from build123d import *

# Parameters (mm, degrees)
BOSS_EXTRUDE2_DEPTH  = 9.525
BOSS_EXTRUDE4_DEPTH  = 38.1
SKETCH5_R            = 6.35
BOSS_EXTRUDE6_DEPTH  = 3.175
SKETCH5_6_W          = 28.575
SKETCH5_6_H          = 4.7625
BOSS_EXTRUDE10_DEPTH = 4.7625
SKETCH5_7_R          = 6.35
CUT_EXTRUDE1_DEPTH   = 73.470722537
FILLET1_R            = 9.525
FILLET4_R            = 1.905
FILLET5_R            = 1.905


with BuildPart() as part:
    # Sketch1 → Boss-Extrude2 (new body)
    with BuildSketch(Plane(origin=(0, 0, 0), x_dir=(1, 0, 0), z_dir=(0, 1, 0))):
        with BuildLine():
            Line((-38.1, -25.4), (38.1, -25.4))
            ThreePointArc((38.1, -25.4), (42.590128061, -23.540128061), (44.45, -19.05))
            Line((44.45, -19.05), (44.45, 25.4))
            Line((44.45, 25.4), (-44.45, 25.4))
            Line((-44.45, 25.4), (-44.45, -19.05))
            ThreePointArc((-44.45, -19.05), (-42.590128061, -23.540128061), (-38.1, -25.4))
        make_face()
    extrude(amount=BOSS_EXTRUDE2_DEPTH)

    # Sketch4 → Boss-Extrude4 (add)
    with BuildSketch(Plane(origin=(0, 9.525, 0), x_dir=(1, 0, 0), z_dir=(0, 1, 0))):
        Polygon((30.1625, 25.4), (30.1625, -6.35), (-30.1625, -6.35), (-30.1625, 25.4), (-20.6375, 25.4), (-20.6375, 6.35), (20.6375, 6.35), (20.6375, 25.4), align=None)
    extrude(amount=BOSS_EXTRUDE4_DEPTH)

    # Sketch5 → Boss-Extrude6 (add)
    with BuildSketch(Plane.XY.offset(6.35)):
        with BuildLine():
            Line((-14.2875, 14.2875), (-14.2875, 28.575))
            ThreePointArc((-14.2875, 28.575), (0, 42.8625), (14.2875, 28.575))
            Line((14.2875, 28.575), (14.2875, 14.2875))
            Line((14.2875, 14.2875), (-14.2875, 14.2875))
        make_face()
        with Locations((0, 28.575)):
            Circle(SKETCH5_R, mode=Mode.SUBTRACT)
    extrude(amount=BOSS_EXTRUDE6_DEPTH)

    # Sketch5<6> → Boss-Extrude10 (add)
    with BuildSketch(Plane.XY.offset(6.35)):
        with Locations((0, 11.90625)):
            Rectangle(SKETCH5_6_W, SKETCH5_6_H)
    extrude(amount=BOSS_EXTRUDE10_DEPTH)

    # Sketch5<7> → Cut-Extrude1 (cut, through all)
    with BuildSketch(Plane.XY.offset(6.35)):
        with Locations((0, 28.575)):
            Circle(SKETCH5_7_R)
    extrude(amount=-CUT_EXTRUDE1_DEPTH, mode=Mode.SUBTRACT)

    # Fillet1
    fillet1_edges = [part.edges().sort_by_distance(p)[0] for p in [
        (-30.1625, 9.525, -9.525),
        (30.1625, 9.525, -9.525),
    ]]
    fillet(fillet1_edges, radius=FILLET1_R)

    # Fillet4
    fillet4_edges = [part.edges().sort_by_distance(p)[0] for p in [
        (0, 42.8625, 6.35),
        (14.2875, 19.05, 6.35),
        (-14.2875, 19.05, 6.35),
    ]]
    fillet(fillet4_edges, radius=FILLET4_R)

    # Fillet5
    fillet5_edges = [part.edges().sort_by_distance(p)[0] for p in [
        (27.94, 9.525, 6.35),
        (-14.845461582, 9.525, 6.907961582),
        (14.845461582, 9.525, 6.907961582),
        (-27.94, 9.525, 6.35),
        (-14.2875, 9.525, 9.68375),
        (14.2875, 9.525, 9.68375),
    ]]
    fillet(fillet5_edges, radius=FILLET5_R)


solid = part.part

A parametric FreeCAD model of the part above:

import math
import FreeCAD as App
import Part
import Sketcher

V = App.Vector
Q = App.Units.Quantity


def edges_at(feature, points):
    """Names of the edges that pass closest to the given points."""
    edges = feature.Shape.Edges
    near = lambda p: min(range(len(edges)), key=lambda i: edges[i].distToShape(Part.Vertex(*p))[0])
    return sorted({f"Edge{near(p) + 1}" for p in points})

doc = App.newDocument("Part")
body = doc.addObject("PartDesign::Body", "Body")

sketch1 = body.newObject("Sketcher::SketchObject", "Sketch")
sketch1.AttachmentSupport = (doc.getObject("XZ_Plane"), [""])
sketch1.MapMode = "FlatFace"
sketch1.addGeometry([
    Part.LineSegment(V(-38, 25, 0), V(38, 25, 0)),
    Part.ArcOfCircle(Part.Circle(V(38, 19, 0), V(0, 0, 1), 6), math.radians(0), math.radians(90)),
    Part.LineSegment(V(44, 19, 0), V(44, -25, 0)),
    Part.LineSegment(V(44, -25, 0), V(-44, -25, 0)),
    Part.LineSegment(V(-44, -25, 0), V(-44, 19, 0)),
    Part.ArcOfCircle(Part.Circle(V(-38, 19, 0), V(0, 0, 1), 6), math.radians(90), math.radians(180)),
], False)
sketch1.addConstraint([
    Sketcher.Constraint("Tangent", 0, 2, 1, 2),
    Sketcher.Constraint("Tangent", 1, 1, 2, 1),
    Sketcher.Constraint("Coincident", 2, 2, 3, 1),
    Sketcher.Constraint("Coincident", 3, 2, 4, 1),
    Sketcher.Constraint("Tangent", 4, 2, 5, 2),
    Sketcher.Constraint("Tangent", 5, 1, 0, 1),
    Sketcher.Constraint("Horizontal", 0),
    Sketcher.Constraint("Vertical", 2),
    Sketcher.Constraint("Horizontal", 3),
    Sketcher.Constraint("Vertical", 4),
    Sketcher.Constraint("Equal", 1, 5),
    Sketcher.Constraint("DistanceX", 0, 1, 0, 2, Q("3 in")),
    Sketcher.Constraint("Radius", 1, Q("0.25 in")),
    Sketcher.Constraint("DistanceY", -1, 1, 0, 2, Q("1 in")),
    Sketcher.Constraint("DistanceY", 2, 2, -1, 1, Q("1 in")),
    Sketcher.Constraint("DistanceX", -1, 1, 1, 3, Q("1.5 in")),
])
pad1 = body.newObject("PartDesign::Pad", "Pad")
pad1.Profile = sketch1
pad1.Length = Q("0.375 in")
pad1.Reversed = True

sketch2 = body.newObject("Sketcher::SketchObject", "Sketch001")
sketch2.AttachmentSupport = (doc.getObject("XZ_Plane"), [""])
sketch2.MapMode = "FlatFace"
sketch2.AttachmentOffset = App.Placement(V(0, 0, -0.375 * 25.4), App.Rotation())
sketch2.addGeometry([
    Part.LineSegment(V(30, 6, 0), V(30, -25, 0)),
    Part.LineSegment(V(30, -25, 0), V(21, -25, 0)),
    Part.LineSegment(V(21, -25, 0), V(21, -6, 0)),
    Part.LineSegment(V(21, -6, 0), V(-21, -6, 0)),
    Part.LineSegment(V(-21, -6, 0), V(-21, -25, 0)),
    Part.LineSegment(V(-21, -25, 0), V(-30, -25, 0)),
    Part.LineSegment(V(-30, -25, 0), V(-30, 6, 0)),
    Part.LineSegment(V(-30, 6, 0), V(30, 6, 0)),
], False)
sketch2.addConstraint([
    Sketcher.Constraint("Coincident", 0, 2, 1, 1),
    Sketcher.Constraint("Coincident", 1, 2, 2, 1),
    Sketcher.Constraint("Coincident", 2, 2, 3, 1),
    Sketcher.Constraint("Coincident", 3, 2, 4, 1),
    Sketcher.Constraint("Coincident", 4, 2, 5, 1),
    Sketcher.Constraint("Coincident", 5, 2, 6, 1),
    Sketcher.Constraint("Coincident", 6, 2, 7, 1),
    Sketcher.Constraint("Coincident", 7, 2, 0, 1),
    Sketcher.Constraint("Vertical", 0),
    Sketcher.Constraint("Horizontal", 1),
    Sketcher.Constraint("Vertical", 2),
    Sketcher.Constraint("Horizontal", 3),
    Sketcher.Constraint("Vertical", 4),
    Sketcher.Constraint("Horizontal", 5),
    Sketcher.Constraint("Vertical", 6),
    Sketcher.Constraint("Horizontal", 7),
    Sketcher.Constraint("Symmetric", 1, 2, 4, 2, -2),
    Sketcher.Constraint("Equal", 1, 5),
    Sketcher.Constraint("DistanceY", 0, 2, -1, 1, Q("1 in")),
    Sketcher.Constraint("DistanceX", 3, 2, 0, 2, Q("2 in")),
    Sketcher.Constraint("DistanceY", 0, 2, 0, 1, Q("1.25 in")),
    Sketcher.Constraint("DistanceY", 2, 1, 2, 2, Q("0.75 in")),
    Sketcher.Constraint("DistanceX", 1, 2, 1, 1, Q("0.375 in")),
])
pad2 = body.newObject("PartDesign::Pad", "Pad001")
pad2.Profile = sketch2
pad2.Length = Q("1.5 in")
pad2.Reversed = True

sketch3 = body.newObject("Sketcher::SketchObject", "Sketch002")
sketch3.AttachmentSupport = (doc.getObject("XY_Plane"), [""])
sketch3.MapMode = "FlatFace"
sketch3.AttachmentOffset = App.Placement(V(0, 0, 0.25 * 25.4), App.Rotation())
sketch3.addGeometry([
    Part.LineSegment(V(-14, 29, 0), V(-14, 14, 0)),
    Part.LineSegment(V(-14, 14, 0), V(14, 14, 0)),
    Part.LineSegment(V(14, 14, 0), V(14, 29, 0)),
    Part.ArcOfCircle(Part.Circle(V(0, 29, 0), V(0, 0, 1), 14), math.radians(0), math.radians(180)),
    Part.Circle(V(0, 29, 0), V(0, 0, 1), 6),
], False)
sketch3.addConstraint([
    Sketcher.Constraint("Coincident", 0, 2, 1, 1),
    Sketcher.Constraint("Coincident", 1, 2, 2, 1),
    Sketcher.Constraint("Tangent", 2, 2, 3, 1),
    Sketcher.Constraint("Tangent", 3, 2, 0, 1),
    Sketcher.Constraint("Vertical", 0),
    Sketcher.Constraint("Horizontal", 1),
    Sketcher.Constraint("Vertical", 2),
    Sketcher.Constraint("Coincident", 4, 3, 3, 3),
    Sketcher.Constraint("PointOnObject", 3, 3, -2),
    Sketcher.Constraint("Diameter", 4, Q("0.5 in")),
    Sketcher.Constraint("Radius", 3, Q("0.5625 in")),
    Sketcher.Constraint("DistanceY", 0, 2, 0, 1, Q("0.5625 in")),
    Sketcher.Constraint("DistanceY", -1, 1, 3, 3, Q("1.125 in")),
])
pad3 = body.newObject("PartDesign::Pad", "Pad002")
pad3.Profile = sketch3
pad3.Length = Q("0.125 in")

sketch4 = body.newObject("Sketcher::SketchObject", "Sketch003")
sketch4.AttachmentSupport = (doc.getObject("XY_Plane"), [""])
sketch4.MapMode = "FlatFace"
sketch4.AttachmentOffset = App.Placement(V(0, 0, 0.25 * 25.4), App.Rotation())
sketch4.addGeometry([
    Part.LineSegment(V(-14.3, 14.3, 0), V(-14.3, 9.5, 0)),
    Part.LineSegment(V(-14.3, 9.5, 0), V(14.3, 9.5, 0)),
    Part.LineSegment(V(14.3, 9.5, 0), V(14.3, 14.3, 0)),
    Part.LineSegment(V(14.3, 14.3, 0), V(-14.3, 14.3, 0)),
], False)
sketch4.addConstraint([
    Sketcher.Constraint("Coincident", 0, 2, 1, 1),
    Sketcher.Constraint("Coincident", 1, 2, 2, 1),
    Sketcher.Constraint("Coincident", 2, 2, 3, 1),
    Sketcher.Constraint("Coincident", 3, 2, 0, 1),
    Sketcher.Constraint("Vertical", 0),
    Sketcher.Constraint("Horizontal", 1),
    Sketcher.Constraint("Vertical", 2),
    Sketcher.Constraint("Horizontal", 3),
    Sketcher.Constraint("DistanceX", 1, 1, 1, 2, Q("1.125 in")),
    Sketcher.Constraint("DistanceY", 0, 2, 0, 1, Q("0.1875 in")),
    Sketcher.Constraint("DistanceX", 0, 2, -1, 1, Q("0.5625 in")),
    Sketcher.Constraint("DistanceY", -1, 1, 0, 2, Q("0.375 in")),
])
pad4 = body.newObject("PartDesign::Pad", "Pad003")
pad4.Profile = sketch4
pad4.Length = Q("0.1875 in")

sketch5 = body.newObject("Sketcher::SketchObject", "Sketch004")
sketch5.AttachmentSupport = (doc.getObject("XY_Plane"), [""])
sketch5.MapMode = "FlatFace"
sketch5.AttachmentOffset = App.Placement(V(0, 0, 0.25 * 25.4), App.Rotation())
sketch5.addGeometry(Part.Circle(V(0, 29, 0), V(0, 0, 1), 6), False)
sketch5.addConstraint([
    Sketcher.Constraint("PointOnObject", 0, 3, -2),
    Sketcher.Constraint("Diameter", 0, Q("0.5 in")),
    Sketcher.Constraint("DistanceY", -1, 1, 0, 3, Q("1.125 in")),
])
pocket1 = body.newObject("PartDesign::Pocket", "Pocket")
pocket1.Profile = sketch5
pocket1.Type = "ThroughAll"
doc.recompute()

fillet = body.newObject("PartDesign::Fillet", "Fillet")
fillet.Base = (pocket1, edges_at(pocket1, [(-30.163, 9.525, -9.525), (30.163, 9.525, -9.525)]))
fillet.Radius = Q("0.375 in")
doc.recompute()

fillet2 = body.newObject("PartDesign::Fillet", "Fillet001")
fillet2.Base = (fillet, edges_at(fillet, [(0, 42.862, 6.35), (14.287, 19.05, 6.35), (-14.287, 19.05, 6.35)]))
fillet2.Radius = Q("0.075 in")
doc.recompute()

fillet3 = body.newObject("PartDesign::Fillet", "Fillet002")
fillet3.Base = (fillet2, edges_at(fillet2, [
    (27.94, 9.525, 6.35),
    (-14.845, 9.525, 6.908),
    (14.845, 9.525, 6.908),
    (-27.94, 9.525, 6.35),
    (-14.287, 9.525, 9.684),
    (14.287, 9.525, 9.684),
]))
fillet3.Radius = Q("0.075 in")

doc.recompute()
